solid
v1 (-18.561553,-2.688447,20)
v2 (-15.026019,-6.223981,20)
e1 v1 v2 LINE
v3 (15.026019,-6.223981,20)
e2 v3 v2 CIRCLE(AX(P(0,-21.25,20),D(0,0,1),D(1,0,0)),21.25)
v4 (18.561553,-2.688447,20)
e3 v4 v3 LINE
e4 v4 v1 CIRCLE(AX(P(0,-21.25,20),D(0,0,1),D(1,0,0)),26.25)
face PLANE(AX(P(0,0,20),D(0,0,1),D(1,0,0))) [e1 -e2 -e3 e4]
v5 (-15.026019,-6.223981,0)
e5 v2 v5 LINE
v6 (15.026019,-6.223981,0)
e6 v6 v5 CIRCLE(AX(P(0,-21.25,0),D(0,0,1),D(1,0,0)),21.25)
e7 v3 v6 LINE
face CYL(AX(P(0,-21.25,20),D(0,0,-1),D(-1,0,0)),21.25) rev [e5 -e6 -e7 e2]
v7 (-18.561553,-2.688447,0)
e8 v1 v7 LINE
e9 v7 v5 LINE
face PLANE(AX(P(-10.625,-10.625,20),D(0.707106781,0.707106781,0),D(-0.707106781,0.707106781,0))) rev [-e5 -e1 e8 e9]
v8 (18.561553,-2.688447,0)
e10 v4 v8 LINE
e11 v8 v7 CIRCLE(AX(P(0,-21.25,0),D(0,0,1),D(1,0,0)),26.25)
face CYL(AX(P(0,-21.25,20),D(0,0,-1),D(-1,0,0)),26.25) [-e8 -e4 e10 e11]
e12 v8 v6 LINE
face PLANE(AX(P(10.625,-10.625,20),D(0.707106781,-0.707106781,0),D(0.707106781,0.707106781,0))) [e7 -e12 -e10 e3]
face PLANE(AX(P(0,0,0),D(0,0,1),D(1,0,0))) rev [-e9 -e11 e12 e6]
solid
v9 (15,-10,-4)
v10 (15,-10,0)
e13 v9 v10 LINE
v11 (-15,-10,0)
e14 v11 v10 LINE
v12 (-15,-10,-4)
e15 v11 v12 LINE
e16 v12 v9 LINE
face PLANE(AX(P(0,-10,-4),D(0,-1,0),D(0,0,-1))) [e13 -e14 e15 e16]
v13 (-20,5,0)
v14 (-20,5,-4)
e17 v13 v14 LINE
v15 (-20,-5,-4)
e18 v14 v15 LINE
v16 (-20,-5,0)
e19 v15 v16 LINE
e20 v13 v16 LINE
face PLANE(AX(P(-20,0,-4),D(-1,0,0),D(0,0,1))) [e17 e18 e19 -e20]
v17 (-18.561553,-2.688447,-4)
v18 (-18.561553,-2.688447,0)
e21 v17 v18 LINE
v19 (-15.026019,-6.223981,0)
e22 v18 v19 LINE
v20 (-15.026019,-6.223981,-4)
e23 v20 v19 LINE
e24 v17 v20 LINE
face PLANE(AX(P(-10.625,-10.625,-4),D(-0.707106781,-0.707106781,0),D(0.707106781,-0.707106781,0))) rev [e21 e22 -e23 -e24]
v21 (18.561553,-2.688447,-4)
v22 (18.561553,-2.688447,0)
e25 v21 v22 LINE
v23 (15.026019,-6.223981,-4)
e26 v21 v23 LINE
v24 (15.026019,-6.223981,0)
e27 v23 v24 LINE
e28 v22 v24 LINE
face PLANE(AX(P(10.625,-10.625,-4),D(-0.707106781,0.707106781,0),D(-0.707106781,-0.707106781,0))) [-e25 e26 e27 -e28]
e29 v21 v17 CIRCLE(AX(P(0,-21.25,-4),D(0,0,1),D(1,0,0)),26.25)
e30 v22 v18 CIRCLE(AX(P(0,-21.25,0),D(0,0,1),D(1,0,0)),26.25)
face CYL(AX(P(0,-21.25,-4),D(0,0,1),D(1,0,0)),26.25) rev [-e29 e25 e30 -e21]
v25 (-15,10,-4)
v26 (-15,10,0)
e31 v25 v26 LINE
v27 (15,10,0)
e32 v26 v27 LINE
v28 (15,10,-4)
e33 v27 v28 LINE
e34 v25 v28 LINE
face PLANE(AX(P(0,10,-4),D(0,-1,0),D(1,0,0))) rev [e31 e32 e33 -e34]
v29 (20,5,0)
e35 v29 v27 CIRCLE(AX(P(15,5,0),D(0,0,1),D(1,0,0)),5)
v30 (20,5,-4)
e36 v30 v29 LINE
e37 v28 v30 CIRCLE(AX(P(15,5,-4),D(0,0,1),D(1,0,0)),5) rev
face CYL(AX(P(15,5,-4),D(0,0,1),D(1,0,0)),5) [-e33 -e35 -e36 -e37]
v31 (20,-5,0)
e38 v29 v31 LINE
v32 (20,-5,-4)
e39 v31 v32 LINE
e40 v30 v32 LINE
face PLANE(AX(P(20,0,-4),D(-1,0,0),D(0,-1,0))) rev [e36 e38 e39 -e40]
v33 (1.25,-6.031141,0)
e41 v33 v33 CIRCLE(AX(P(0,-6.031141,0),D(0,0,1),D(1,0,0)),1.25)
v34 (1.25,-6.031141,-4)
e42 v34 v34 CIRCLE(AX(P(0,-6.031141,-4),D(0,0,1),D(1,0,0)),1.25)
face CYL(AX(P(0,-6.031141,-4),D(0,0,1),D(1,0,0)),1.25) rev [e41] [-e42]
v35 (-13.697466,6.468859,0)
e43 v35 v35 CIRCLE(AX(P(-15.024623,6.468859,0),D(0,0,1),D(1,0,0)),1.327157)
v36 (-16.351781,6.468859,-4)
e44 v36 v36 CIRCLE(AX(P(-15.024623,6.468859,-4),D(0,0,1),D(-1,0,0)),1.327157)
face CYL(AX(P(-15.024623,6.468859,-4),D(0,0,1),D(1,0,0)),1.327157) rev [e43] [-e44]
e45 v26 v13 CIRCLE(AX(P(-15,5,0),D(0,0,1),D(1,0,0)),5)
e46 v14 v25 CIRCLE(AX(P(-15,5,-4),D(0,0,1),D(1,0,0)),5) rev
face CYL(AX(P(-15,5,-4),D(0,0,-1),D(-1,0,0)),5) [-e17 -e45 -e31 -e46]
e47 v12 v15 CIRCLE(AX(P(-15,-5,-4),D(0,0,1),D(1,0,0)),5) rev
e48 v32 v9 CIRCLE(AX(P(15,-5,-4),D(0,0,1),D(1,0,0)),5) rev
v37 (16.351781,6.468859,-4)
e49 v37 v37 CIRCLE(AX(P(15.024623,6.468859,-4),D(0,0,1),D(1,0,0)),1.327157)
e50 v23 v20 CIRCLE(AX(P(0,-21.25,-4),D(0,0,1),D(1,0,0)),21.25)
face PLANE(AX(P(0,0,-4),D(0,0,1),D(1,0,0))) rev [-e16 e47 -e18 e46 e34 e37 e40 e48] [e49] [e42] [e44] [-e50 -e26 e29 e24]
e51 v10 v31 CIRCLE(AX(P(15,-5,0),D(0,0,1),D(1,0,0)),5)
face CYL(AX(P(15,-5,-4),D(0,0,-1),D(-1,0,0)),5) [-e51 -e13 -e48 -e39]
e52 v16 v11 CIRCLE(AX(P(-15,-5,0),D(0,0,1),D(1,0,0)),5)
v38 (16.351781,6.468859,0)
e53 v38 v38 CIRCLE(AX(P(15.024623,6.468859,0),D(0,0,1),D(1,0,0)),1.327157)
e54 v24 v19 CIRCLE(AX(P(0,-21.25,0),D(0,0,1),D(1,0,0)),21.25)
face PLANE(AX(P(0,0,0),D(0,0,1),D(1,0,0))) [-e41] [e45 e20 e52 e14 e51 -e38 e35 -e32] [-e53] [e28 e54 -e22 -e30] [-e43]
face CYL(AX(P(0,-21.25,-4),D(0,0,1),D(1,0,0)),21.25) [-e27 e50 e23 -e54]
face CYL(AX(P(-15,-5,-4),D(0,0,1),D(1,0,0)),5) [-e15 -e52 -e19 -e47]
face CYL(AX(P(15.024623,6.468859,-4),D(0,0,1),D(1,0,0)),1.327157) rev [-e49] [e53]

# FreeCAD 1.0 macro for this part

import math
import FreeCAD as App
import Part
import Sketcher
Q = App.Units.Quantity


def edges_at(feature, points):
    """Names of the edges that pass closest to the given points."""
    edges = feature.Shape.Edges
    near = lambda p: min(range(len(edges)), key=lambda i: edges[i].distToShape(Part.Vertex(*p))[0])
    return sorted({f"Edge{near(p) + 1}" for p in points})


def add_polygon(sketch, points):
    """Adds a closed chain of lines whose ends are joined by coincident constraints."""
    first, n = sketch.GeometryCount, len(points)
    for a, b in zip(points, points[1:] + points[:1]):
        sketch.addGeometry(Part.LineSegment(App.Vector(*a, 0), App.Vector(*b, 0)), False)
    for i in range(n):
        sketch.addConstraint(Sketcher.Constraint("Coincident", first + i, 2, first + (i + 1) % n, 1))

doc = App.newDocument("Part")
body = doc.addObject("PartDesign::Body", "Body")

# Sketch on XY plane
sketch1 = doc.addObject("Sketcher::SketchObject", "Sketch")
body.addObject(sketch1)
sketch1.AttachmentSupport = (doc.XY_Plane, [""])
sketch1.MapMode = "FlatFace"
sketch1.addGeometry([
    Part.LineSegment(App.Vector(15.026019, -6.223981, 0), App.Vector(18.561553, -2.688447, 0)),
    Part.ArcOfCircle(Part.Circle(App.Vector(0, -21.25, 0), App.Vector(0, 0, 1), 26.25), math.radians(45), math.radians(135)),
    Part.LineSegment(App.Vector(-18.561553, -2.688447, 0), App.Vector(-15.026019, -6.223981, 0)),
    Part.ArcOfCircle(Part.Circle(App.Vector(0, -21.25, 0), App.Vector(0, 0, 1), 21.25), math.radians(45), math.radians(135)),
], False)
sketch1.addConstraint([
    Sketcher.Constraint("Coincident", 0, 2, 1, 1),
    Sketcher.Constraint("Coincident", 1, 2, 2, 1),
    Sketcher.Constraint("Coincident", 2, 2, 3, 2),
    Sketcher.Constraint("Coincident", 3, 1, 0, 1),
    Sketcher.Constraint("Coincident", 3, 3, 1, 3),
    Sketcher.Constraint("Symmetric", 0, 2, 1, 2, -2),
    Sketcher.Constraint("Perpendicular", 0, 2),
    Sketcher.Constraint("Horizontal", 2, 2, 3, 1),
    Sketcher.Constraint("Radius", 1, Q("26.25 mm")),
    Sketcher.Constraint("Radius", 3, Q("21.25 mm")),
    Sketcher.Constraint("DistanceY", 1, 3, -1, 1, Q("21.25 mm")),
    Sketcher.Constraint("DistanceX", 2, 2, -1, 1, Q("15.026019 mm")),
])
pad1 = doc.addObject("PartDesign::Pad", "Pad")
body.addObject(pad1)
pad1.Profile = sketch1
pad1.Length = 20
body2 = doc.addObject("PartDesign::Body", "Body001")

# Sketch on XY plane
sketch2 = doc.addObject("Sketcher::SketchObject", "Sketch001")
body2.addObject(sketch2)
sketch2.AttachmentSupport = (doc.getObject("XY_Plane001"), [""])
sketch2.MapMode = "FlatFace"
add_polygon(sketch2, [(-20, 10), (-20, -10), (20, -10), (20, 10)])  # lines 0-3
sketch2.addGeometry(Part.LineSegment(App.Vector(-15.026019, -6.223981, 0), App.Vector(-18.561553, -2.688447, 0)), False)  # 4
sketch2.addGeometry(Part.ArcOfCircle(Part.Circle(App.Vector(0, -21.25, 0), App.Vector(0, 0, 1), 26.25), math.radians(45), math.radians(135)), False)  # 5
sketch2.addGeometry(Part.LineSegment(App.Vector(18.561553, -2.688447, 0), App.Vector(15.026019, -6.223981, 0)), False)  # 6
sketch2.addGeometry(Part.ArcOfCircle(Part.Circle(App.Vector(0, -21.25, 0), App.Vector(0, 0, 1), 21.25), math.radians(45), math.radians(135)), False)  # 7
sketch2.addConstraint([
    Sketcher.Constraint("Coincident", 4, 2, 5, 2),
    Sketcher.Constraint("Coincident", 5, 1, 6, 1),
    Sketcher.Constraint("Coincident", 6, 2, 7, 1),
    Sketcher.Constraint("Coincident", 7, 2, 4, 1),
    Sketcher.Constraint("Vertical", 0),
    Sketcher.Constraint("Horizontal", 1),
    Sketcher.Constraint("Vertical", 2),
    Sketcher.Constraint("Horizontal", 3),
    Sketcher.Constraint("Coincident", 7, 3, 5, 3),
    Sketcher.Constraint("Symmetric", 0, 2, 2, 2, -1, 1),
    Sketcher.Constraint("Symmetric", 4, 2, 5, 1, -2),
    Sketcher.Constraint("Perpendicular", 4, 6),
    Sketcher.Constraint("Horizontal", 6, 2, 7, 2),
    Sketcher.Constraint("DistanceX", 1, 1, 1, 2, Q("40 mm")),
    Sketcher.Constraint("DistanceY", 0, 2, 0, 1, Q("20 mm")),
    Sketcher.Constraint("Radius", 5, Q("26.25 mm")),
    Sketcher.Constraint("Radius", 7, Q("21.25 mm")),
    Sketcher.Constraint("DistanceY", 5, 3, -1, 1, Q("21.25 mm")),
    Sketcher.Constraint("DistanceX", -1, 1, 6, 2, Q("15.026019 mm")),
])
pad2 = doc.addObject("PartDesign::Pad", "Pad001")
body2.addObject(pad2)
pad2.Profile = sketch2
pad2.Length = 4
pad2.Reversed = True
doc.recompute()

fillet = doc.addObject("PartDesign::Fillet", "Fillet")
body2.addObject(fillet)
fillet.Base = (pad2, edges_at(pad2, [
    (-20, 10, -2),
    (20, 10, -2),
    (20, -10, -2),
    (-20, -10, -2),
]))
fillet.Radius = 5

# Sketch on XY plane
sketch3 = doc.addObject("Sketcher::SketchObject", "Sketch002")
body2.addObject(sketch3)
sketch3.AttachmentSupport = (doc.getObject("XY_Plane001"), [""])
sketch3.MapMode = "FlatFace"
sketch3.addGeometry([
    Part.Circle(App.Vector(15.024623, 6.468859, 0), App.Vector(0, 0, 1), 1.327157),
    Part.Circle(App.Vector(0, -6.031141, 0), App.Vector(0, 0, 1), 1.25),
    Part.Circle(App.Vector(-15.024623, 6.468859, 0), App.Vector(0, 0, 1), 1.327157),
], False)
sketch3.addConstraint([
    Sketcher.Constraint("Equal", 0, 2),
    Sketcher.Constraint("Symmetric", 0, 3, 2, 3, -2),
    Sketcher.Constraint("PointOnObject", 1, 3, -2),
    Sketcher.Constraint("Diameter", 1, Q("2.5 mm")),
    Sketcher.Constraint("DistanceY", 1, 3, 0, 3, Q("12.5 mm")),
    Sketcher.Constraint("Diameter", 0, Q("2.654315 mm")),
    Sketcher.Constraint("DistanceY", -1, 1, 0, 3, Q("6.468859 mm")),
    Sketcher.Constraint("DistanceX", -1, 1, 0, 3, Q("15.024623 mm")),
])
pocket1 = doc.addObject("PartDesign::Pocket", "Pocket")
body2.addObject(pocket1)
pocket1.Profile = sketch3
pocket1.Type = "ThroughAll"
pocket1.Midplane = True

doc.recompute()
